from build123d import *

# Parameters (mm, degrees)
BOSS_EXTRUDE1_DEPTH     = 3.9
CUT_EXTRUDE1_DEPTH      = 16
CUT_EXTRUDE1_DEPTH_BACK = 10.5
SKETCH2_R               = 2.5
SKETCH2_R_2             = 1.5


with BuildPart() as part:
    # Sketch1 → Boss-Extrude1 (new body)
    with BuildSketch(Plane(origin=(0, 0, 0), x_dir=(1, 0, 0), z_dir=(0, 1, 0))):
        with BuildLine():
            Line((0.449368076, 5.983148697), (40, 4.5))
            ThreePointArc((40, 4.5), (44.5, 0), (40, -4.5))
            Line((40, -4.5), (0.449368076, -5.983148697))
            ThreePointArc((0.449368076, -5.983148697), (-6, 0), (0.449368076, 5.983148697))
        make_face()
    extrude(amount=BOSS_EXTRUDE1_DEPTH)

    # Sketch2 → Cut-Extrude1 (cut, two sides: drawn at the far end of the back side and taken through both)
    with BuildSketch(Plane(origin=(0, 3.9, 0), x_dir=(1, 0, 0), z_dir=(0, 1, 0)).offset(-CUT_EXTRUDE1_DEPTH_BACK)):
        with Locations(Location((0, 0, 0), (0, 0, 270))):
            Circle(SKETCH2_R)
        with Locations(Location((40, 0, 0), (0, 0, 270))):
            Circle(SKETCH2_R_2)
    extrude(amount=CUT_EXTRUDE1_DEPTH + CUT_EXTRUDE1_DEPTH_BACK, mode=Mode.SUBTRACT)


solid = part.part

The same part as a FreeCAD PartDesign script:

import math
import FreeCAD as App
import Part
import Sketcher
from FreeCAD import Vector

doc = App.newDocument("Part")
body = doc.addObject("PartDesign::Body", "Body")

sketch1 = body.newObject("Sketcher::SketchObject", "Sketch")
sketch1.AttachmentSupport = (doc.getObject("XZ_Plane"), [""])
sketch1.MapMode = "FlatFace"
sketch1.addGeometry([
    Part.LineSegment(Vector(40, -4.5, 0), Vector(0.449368, -5.983149, 0)),
    Part.ArcOfCircle(Part.Circle(Vector(0, 0, 0), Vector(0, 0, 1), 6), math.radians(85.704829), math.radians(274.295171)),
    Part.LineSegment(Vector(0.449368, 5.983149, 0), Vector(40, 4.5, 0)),
    Part.ArcOfCircle(Part.Circle(Vector(40, 0, 0), Vector(0, 0, 1), 4.5), math.radians(-90), math.radians(90)),
], False)
sketch1.addConstraint([
    Sketcher.Constraint("Coincident", 0, 2, 1, 2),
    Sketcher.Constraint("Coincident", 1, 1, 2, 1),
    Sketcher.Constraint("Coincident", 2, 2, 3, 2),
    Sketcher.Constraint("Coincident", 3, 1, 0, 1),
    Sketcher.Constraint("Coincident", 1, 3, -1, 1),
    Sketcher.Constraint("Symmetric", 2, 2, 3, 1, -1),
    Sketcher.Constraint("Vertical", 0, 2, 1, 1),
    Sketcher.Constraint("Vertical", 3, 3, 2, 2),
    Sketcher.Constraint("Radius", 1, 6.0),
    Sketcher.Constraint("Radius", 3, 4.5),
    Sketcher.Constraint("DistanceX", -1, 1, 3, 3, 40.0),
    Sketcher.Constraint("Distance", 0, 39.578431),
])
pad1 = body.newObject("PartDesign::Pad", "Pad")
pad1.Profile = sketch1
pad1.Length = 3.9
pad1.Reversed = True

sketch2 = body.newObject("Sketcher::SketchObject", "Sketch001")
sketch2.AttachmentSupport = (doc.getObject("XZ_Plane"), [""])
sketch2.MapMode = "FlatFace"
sketch2.AttachmentOffset = App.Placement(Vector(0, 0, -3.9), App.Rotation())
sketch2.addGeometry([
    Part.Circle(Vector(0, 0, 0), Vector(0, 0, 1), 2.5),
    Part.Circle(Vector(40, 0, 0), Vector(0, 0, 1), 1.5),
], False)
sketch2.addConstraint([
    Sketcher.Constraint("Coincident", 0, 3, -1, 1),
    Sketcher.Constraint("PointOnObject", 1, 3, -1),
    Sketcher.Constraint("Diameter", 0, 5.0),
    Sketcher.Constraint("Diameter", 1, 3.0),
    Sketcher.Constraint("DistanceX", -1, 1, 1, 3, 40.0),
])
pocket1 = body.newObject("PartDesign::Pocket", "Pocket")
pocket1.Profile = sketch2
pocket1.Type = "ThroughAll"
pocket1.Midplane = True

doc.recompute()
